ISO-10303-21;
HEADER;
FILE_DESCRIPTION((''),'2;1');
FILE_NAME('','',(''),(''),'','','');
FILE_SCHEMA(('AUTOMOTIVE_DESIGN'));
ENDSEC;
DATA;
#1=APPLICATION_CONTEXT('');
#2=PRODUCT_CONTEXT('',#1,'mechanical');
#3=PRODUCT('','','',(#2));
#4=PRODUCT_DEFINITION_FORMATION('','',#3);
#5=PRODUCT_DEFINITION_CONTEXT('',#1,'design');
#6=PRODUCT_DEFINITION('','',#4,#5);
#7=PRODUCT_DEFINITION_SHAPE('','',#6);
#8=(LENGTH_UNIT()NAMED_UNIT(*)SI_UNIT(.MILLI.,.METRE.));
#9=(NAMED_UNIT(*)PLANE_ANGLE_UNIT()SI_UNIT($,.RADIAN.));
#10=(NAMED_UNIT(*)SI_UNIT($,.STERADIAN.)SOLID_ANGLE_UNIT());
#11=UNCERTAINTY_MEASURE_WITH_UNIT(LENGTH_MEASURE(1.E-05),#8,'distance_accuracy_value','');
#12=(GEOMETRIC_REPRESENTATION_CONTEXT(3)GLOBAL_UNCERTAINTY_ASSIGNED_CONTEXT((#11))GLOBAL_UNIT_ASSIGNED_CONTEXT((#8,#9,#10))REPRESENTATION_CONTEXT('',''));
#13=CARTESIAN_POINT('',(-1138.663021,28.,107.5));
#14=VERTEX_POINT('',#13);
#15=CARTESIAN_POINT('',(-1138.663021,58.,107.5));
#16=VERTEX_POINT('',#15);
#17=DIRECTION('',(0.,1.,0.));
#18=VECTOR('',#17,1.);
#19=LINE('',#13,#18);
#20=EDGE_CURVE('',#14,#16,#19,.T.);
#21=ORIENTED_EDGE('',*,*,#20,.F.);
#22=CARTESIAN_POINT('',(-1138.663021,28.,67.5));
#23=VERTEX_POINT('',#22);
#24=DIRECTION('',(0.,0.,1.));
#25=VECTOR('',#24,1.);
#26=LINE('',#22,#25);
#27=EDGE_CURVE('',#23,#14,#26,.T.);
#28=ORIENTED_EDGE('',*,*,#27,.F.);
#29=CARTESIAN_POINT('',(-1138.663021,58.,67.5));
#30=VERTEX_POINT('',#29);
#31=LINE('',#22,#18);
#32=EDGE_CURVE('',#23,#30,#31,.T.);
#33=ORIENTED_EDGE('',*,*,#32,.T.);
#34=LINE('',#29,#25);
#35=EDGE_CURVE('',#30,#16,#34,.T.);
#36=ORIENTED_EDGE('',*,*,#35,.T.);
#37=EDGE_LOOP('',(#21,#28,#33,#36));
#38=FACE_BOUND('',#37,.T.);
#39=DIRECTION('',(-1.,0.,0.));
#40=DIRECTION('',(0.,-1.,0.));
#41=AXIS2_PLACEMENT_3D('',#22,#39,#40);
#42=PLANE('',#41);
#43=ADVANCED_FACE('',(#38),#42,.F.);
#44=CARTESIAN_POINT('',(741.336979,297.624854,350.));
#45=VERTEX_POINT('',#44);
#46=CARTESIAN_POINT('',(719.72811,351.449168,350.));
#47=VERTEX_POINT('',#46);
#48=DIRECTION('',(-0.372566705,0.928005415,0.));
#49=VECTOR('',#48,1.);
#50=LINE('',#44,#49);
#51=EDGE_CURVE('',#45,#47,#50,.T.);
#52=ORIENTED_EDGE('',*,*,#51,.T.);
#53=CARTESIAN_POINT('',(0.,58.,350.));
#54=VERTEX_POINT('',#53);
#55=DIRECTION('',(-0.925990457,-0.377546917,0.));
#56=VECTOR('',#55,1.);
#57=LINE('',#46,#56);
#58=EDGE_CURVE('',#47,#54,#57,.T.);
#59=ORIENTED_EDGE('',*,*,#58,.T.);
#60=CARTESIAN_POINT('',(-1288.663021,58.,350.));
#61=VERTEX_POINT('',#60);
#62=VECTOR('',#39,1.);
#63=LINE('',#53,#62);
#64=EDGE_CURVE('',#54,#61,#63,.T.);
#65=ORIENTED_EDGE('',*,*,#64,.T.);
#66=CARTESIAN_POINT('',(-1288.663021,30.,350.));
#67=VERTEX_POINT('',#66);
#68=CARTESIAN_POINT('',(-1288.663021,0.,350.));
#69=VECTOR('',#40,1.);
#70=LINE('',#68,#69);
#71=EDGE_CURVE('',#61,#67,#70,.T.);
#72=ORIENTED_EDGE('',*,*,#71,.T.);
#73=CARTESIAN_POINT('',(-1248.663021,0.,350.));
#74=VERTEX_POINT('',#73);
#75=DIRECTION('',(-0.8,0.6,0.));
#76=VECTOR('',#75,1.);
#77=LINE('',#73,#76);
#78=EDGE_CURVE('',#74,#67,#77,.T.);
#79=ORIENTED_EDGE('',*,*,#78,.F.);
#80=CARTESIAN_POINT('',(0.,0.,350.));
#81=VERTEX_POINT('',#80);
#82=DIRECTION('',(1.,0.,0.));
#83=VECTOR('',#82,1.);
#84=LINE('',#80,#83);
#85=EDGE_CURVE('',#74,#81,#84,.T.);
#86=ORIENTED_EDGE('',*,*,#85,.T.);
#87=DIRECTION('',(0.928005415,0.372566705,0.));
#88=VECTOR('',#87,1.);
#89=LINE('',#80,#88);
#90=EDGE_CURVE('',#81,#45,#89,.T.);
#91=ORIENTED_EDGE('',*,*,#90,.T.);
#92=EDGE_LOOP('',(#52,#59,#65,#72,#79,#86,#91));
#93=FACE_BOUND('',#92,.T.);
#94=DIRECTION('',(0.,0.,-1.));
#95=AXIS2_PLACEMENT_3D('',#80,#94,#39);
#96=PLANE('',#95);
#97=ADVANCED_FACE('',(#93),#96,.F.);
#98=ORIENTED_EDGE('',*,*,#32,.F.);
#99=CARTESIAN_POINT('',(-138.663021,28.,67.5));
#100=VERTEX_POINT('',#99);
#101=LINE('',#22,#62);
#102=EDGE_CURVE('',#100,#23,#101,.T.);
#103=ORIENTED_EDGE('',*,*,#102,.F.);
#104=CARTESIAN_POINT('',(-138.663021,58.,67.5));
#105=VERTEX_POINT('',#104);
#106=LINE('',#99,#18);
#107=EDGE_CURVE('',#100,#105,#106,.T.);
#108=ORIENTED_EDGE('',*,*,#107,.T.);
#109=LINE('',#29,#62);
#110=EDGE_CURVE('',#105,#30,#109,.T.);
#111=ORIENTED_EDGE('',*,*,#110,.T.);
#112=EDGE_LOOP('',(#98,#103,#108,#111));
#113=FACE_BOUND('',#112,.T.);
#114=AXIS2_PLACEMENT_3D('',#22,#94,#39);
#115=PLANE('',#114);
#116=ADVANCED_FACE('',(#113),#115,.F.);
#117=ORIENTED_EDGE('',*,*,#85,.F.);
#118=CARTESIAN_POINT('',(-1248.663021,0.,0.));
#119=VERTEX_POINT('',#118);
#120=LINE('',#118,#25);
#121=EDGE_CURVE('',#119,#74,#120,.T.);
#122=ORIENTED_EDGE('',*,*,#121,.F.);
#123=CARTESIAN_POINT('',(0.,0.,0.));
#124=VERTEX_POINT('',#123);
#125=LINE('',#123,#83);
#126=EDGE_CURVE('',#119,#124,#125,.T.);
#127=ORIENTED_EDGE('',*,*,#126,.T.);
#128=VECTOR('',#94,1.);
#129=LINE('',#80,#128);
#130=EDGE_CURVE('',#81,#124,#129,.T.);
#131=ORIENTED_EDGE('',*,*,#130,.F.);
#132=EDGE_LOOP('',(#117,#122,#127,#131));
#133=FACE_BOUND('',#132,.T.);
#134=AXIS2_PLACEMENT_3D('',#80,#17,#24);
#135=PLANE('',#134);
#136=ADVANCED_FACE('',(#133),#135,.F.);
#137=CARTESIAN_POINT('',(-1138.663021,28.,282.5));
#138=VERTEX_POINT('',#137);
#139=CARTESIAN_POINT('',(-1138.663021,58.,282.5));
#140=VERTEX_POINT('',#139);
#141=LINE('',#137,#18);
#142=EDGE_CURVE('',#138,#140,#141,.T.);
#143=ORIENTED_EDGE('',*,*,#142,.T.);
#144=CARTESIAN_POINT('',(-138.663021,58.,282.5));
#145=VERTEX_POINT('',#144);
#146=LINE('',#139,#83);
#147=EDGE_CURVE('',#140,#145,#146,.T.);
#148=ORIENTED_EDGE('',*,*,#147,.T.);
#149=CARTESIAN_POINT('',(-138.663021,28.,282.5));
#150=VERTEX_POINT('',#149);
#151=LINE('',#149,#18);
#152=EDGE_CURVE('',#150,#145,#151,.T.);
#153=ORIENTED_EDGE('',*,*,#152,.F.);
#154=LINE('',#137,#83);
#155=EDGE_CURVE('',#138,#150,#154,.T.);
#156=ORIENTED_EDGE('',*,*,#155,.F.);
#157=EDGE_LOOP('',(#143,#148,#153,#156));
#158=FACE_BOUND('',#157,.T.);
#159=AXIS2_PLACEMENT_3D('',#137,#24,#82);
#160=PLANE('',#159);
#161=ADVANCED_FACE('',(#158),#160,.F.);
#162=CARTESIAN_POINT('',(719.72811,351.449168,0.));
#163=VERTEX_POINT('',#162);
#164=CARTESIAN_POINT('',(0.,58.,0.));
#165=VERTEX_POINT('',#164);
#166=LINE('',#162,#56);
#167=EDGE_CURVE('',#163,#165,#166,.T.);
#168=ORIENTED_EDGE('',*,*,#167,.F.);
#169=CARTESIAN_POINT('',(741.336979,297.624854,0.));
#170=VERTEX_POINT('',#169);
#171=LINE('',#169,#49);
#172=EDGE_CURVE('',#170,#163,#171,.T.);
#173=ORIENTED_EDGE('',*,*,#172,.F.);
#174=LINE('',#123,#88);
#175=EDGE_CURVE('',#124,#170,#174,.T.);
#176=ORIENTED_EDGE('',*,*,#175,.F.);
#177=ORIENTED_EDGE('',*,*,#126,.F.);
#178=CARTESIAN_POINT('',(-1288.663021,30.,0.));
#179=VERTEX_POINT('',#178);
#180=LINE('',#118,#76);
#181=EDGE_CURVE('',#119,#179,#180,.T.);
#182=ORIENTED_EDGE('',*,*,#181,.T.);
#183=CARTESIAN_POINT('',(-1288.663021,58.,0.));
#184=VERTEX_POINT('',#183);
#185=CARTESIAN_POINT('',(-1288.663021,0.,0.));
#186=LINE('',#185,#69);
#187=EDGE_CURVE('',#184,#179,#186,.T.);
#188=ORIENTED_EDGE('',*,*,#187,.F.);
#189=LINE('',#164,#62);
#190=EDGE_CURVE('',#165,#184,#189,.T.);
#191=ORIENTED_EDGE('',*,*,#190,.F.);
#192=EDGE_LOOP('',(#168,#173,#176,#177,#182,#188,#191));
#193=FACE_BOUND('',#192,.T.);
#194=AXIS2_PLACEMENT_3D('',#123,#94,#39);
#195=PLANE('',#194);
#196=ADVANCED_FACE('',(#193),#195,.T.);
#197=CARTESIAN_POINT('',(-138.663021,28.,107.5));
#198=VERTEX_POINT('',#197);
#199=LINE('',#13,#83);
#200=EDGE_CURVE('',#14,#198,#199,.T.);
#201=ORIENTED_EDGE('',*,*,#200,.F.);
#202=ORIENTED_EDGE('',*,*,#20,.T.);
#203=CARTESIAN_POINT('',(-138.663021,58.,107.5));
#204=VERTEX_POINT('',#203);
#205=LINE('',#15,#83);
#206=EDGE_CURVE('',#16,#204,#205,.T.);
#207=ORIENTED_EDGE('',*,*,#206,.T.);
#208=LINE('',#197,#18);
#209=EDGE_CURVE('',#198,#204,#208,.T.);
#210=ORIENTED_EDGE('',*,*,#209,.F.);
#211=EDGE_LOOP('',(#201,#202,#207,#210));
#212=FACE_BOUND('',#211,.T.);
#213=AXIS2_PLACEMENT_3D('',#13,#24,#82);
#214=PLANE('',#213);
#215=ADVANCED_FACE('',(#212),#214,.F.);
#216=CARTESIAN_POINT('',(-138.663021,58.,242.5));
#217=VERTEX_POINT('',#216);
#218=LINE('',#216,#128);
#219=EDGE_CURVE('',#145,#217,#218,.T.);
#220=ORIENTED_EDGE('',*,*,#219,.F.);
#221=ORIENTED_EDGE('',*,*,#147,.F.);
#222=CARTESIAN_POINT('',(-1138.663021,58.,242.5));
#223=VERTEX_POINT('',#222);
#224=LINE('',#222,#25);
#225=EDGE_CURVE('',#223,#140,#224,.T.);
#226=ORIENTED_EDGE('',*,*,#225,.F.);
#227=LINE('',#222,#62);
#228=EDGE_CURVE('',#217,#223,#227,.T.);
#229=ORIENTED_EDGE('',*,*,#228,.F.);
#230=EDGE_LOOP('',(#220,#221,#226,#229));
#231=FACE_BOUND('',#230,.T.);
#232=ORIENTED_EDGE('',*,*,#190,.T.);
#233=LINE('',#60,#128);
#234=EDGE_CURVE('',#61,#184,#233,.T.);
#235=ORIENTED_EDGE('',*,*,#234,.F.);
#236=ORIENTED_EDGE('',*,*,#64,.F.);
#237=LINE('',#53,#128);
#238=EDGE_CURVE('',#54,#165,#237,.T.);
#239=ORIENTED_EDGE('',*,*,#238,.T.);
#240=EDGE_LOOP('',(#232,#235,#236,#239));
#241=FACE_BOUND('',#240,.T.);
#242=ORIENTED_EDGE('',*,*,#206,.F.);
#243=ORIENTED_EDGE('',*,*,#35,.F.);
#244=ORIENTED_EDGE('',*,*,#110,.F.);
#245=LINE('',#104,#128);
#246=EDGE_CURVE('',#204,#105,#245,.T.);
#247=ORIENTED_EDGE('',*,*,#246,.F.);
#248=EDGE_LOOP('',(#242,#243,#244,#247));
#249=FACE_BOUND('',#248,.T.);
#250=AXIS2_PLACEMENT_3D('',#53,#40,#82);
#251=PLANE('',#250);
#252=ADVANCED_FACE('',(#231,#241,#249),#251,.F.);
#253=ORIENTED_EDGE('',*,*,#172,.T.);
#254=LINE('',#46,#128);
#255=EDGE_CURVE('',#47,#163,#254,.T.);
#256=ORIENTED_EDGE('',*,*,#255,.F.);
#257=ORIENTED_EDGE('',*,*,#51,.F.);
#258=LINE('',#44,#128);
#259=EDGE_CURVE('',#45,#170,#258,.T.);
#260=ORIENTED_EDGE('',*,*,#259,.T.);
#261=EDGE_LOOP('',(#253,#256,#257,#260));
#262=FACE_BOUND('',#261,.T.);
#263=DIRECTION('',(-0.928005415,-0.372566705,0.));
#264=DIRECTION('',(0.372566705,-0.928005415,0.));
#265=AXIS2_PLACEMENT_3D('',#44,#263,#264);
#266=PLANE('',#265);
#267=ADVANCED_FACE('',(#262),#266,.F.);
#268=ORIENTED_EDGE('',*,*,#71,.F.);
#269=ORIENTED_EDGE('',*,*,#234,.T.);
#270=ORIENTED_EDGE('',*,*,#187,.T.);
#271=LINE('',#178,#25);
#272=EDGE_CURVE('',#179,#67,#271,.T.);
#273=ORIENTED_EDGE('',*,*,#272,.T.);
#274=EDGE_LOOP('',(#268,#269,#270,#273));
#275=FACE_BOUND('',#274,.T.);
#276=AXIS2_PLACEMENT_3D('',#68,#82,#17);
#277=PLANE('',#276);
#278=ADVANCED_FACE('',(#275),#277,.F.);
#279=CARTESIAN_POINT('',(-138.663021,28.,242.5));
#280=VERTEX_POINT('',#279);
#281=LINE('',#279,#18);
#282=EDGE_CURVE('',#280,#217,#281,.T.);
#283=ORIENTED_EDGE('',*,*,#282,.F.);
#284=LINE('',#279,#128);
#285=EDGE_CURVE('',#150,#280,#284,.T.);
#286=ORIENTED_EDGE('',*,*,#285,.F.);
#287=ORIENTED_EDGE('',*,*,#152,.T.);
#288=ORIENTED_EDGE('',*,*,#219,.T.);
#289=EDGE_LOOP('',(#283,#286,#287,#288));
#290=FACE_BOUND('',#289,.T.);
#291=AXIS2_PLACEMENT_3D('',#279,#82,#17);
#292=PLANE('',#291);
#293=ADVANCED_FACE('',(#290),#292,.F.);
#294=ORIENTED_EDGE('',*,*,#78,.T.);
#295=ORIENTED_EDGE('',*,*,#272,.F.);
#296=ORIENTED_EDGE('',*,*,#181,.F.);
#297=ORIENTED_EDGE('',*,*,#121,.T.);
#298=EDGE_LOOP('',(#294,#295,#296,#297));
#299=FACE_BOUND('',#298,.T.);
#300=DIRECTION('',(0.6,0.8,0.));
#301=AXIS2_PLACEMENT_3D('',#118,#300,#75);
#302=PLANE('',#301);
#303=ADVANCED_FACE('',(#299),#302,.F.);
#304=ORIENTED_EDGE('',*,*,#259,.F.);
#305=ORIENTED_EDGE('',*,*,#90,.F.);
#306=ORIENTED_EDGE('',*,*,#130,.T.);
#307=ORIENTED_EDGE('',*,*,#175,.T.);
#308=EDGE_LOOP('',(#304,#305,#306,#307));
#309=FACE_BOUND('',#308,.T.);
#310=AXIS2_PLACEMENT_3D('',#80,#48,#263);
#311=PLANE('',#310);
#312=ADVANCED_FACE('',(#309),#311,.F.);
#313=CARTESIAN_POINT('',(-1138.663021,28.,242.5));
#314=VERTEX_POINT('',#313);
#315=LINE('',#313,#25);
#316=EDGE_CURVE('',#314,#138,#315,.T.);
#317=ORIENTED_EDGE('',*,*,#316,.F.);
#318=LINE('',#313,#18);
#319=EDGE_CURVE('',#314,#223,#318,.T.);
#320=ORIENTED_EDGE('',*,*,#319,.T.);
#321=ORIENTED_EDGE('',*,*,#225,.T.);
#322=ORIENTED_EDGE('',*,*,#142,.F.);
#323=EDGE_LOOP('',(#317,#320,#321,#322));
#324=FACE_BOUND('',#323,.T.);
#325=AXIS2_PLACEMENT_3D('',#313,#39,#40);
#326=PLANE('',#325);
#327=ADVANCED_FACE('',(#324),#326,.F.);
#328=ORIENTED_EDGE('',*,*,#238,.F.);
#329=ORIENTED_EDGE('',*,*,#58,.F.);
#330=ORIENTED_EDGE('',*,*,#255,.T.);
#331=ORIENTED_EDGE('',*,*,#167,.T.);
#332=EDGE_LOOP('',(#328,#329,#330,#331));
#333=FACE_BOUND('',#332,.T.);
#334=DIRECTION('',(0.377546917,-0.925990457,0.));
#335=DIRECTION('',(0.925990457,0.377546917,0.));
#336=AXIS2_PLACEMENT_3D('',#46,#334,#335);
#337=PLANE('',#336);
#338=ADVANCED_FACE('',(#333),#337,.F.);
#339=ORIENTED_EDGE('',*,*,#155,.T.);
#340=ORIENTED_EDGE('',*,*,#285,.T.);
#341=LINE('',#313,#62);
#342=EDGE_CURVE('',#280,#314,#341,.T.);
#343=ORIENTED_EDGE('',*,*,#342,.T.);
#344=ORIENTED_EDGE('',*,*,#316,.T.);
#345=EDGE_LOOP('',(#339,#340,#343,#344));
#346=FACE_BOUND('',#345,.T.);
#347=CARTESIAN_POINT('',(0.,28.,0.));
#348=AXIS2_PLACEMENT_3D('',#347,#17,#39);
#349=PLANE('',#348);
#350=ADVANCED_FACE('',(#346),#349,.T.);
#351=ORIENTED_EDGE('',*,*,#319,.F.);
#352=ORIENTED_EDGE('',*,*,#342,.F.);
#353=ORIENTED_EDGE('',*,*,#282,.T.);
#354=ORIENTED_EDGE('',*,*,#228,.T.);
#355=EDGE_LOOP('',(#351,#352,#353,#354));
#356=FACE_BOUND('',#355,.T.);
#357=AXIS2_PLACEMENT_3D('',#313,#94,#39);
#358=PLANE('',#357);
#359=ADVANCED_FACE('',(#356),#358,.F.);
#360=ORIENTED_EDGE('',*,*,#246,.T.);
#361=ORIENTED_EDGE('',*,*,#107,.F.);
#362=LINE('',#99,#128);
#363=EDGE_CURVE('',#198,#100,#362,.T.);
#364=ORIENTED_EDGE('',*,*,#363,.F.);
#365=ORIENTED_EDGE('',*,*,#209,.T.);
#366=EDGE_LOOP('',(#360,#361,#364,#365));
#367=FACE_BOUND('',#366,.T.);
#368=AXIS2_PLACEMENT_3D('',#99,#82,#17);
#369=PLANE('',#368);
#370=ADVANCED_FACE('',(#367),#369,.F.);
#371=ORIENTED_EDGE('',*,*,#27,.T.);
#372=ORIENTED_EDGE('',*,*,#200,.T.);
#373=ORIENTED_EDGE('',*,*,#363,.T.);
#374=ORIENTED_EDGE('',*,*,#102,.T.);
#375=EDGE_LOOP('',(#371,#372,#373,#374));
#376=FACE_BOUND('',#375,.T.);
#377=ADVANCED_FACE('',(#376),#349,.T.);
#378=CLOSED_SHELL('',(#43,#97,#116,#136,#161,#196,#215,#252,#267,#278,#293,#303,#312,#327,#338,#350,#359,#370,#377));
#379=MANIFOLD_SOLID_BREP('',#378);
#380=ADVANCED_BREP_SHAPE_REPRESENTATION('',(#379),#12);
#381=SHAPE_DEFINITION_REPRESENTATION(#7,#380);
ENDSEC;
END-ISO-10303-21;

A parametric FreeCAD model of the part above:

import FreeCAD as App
import Part
import Sketcher
from FreeCAD import Vector
Q = App.Units.Quantity

doc = App.newDocument("Part")
body = doc.addObject("PartDesign::Body", "Body")

# Sketch on XY plane
sketch1 = body.newObject("Sketcher::SketchObject", "Sketch")
sketch1.AttachmentSupport = (doc.getObject("XY_Plane"), [""])
sketch1.MapMode = "FlatFace"
sketch1.addGeometry([
    Part.LineSegment(Vector(0, 0, 0), Vector(741, 298, 0)),  # 0
    Part.LineSegment(Vector(741, 298, 0), Vector(720, 351, 0)),  # 1
    Part.LineSegment(Vector(720, 351, 0), Vector(0, 58, 0)),  # 2
    Part.LineSegment(Vector(0, 58, 0), Vector(-1289, 58, 0)),  # 3
    Part.LineSegment(Vector(-1289, 58, 0), Vector(-1289, 0, 0)),  # 4
    Part.LineSegment(Vector(-1289, 0, 0), Vector(0, 0, 0)),  # 5
], False)
sketch1.addConstraint([
    Sketcher.Constraint("Coincident", 0, 2, 1, 1),
    Sketcher.Constraint("Coincident", 1, 2, 2, 1),
    Sketcher.Constraint("Coincident", 2, 2, 3, 1),
    Sketcher.Constraint("Coincident", 3, 2, 4, 1),
    Sketcher.Constraint("Coincident", 4, 2, 5, 1),
    Sketcher.Constraint("Coincident", 5, 2, 0, 1),
    Sketcher.Constraint("Horizontal", 3),
    Sketcher.Constraint("Vertical", 4),
    Sketcher.Constraint("Horizontal", 5),
    Sketcher.Constraint("Coincident", 5, 2, -1, 1),
    Sketcher.Constraint("PointOnObject", 2, 2, -2),
    Sketcher.Constraint("Perpendicular", 0, 1),
    Sketcher.Constraint("DistanceY", 4, 2, 4, 1, Q("58 mm")),
    Sketcher.Constraint("Distance", 1, Q("58 mm")),
    Sketcher.Constraint("DistanceX", 3, 2, 0, 2, Q("2030 mm")),
    Sketcher.Constraint("DistanceX", 3, 2, 3, 1, Q("1288.663021 mm")),
    Sketcher.Constraint("Distance", 2, Q("777.25219 mm")),
])
pad1 = body.newObject("PartDesign::Pad", "Pad")
pad1.Profile = sketch1
pad1.Length = 350

# Sketch on XY plane
sketch2 = body.newObject("Sketcher::SketchObject", "Sketch001")
sketch2.AttachmentSupport = (doc.getObject("XY_Plane"), [""])
sketch2.MapMode = "FlatFace"
sketch2.AttachmentOffset = App.Placement(Vector(0, 0, 350), App.Rotation())
sketch2.addGeometry([
    Part.LineSegment(Vector(-1289, 30, 0), Vector(-1289, 0, 0)),
    Part.LineSegment(Vector(-1289, 0, 0), Vector(-1249, 0, 0)),
    Part.LineSegment(Vector(-1249, 0, 0), Vector(-1289, 30, 0)),
], False)
sketch2.addConstraint([
    Sketcher.Constraint("Coincident", 0, 2, 1, 1),
    Sketcher.Constraint("Coincident", 1, 2, 2, 1),
    Sketcher.Constraint("Coincident", 2, 2, 0, 1),
    Sketcher.Constraint("Vertical", 0),
    Sketcher.Constraint("Horizontal", 1),
    Sketcher.Constraint("PointOnObject", 0, 2, -1),
    Sketcher.Constraint("DistanceX", 1, 1, 1, 2, Q("40 mm")),
    Sketcher.Constraint("DistanceY", 0, 2, 0, 1, Q("30 mm")),
    Sketcher.Constraint("DistanceX", 0, 2, -1, 1, Q("1288.663021 mm")),
])
pocket1 = body.newObject("PartDesign::Pocket", "Pocket")
pocket1.Profile = sketch2
pocket1.Length = 350

# Sketch on XZ plane
sketch3 = body.newObject("Sketcher::SketchObject", "Sketch002")
sketch3.AttachmentSupport = (doc.getObject("XZ_Plane"), [""])
sketch3.MapMode = "FlatFace"
sketch3.AttachmentOffset = App.Placement(Vector(0, 0, -58), App.Rotation())
sketch3.addGeometry([
    Part.LineSegment(Vector(-1139, 68, 0), Vector(-1139, 108, 0)),  # 0
    Part.LineSegment(Vector(-1139, 108, 0), Vector(-139, 108, 0)),  # 1
    Part.LineSegment(Vector(-139, 108, 0), Vector(-139, 68, 0)),  # 2
    Part.LineSegment(Vector(-139, 68, 0), Vector(-1139, 68, 0)),  # 3
    Part.LineSegment(Vector(-1139, 242, 0), Vector(-1139, 282, 0)),  # 4
    Part.LineSegment(Vector(-1139, 282, 0), Vector(-139, 282, 0)),  # 5
    Part.LineSegment(Vector(-139, 282, 0), Vector(-139, 242, 0)),  # 6
    Part.LineSegment(Vector(-139, 242, 0), Vector(-1139, 242, 0)),  # 7
], False)
sketch3.addConstraint([
    Sketcher.Constraint("Coincident", 0, 2, 1, 1),
    Sketcher.Constraint("Coincident", 1, 2, 2, 1),
    Sketcher.Constraint("Coincident", 2, 2, 3, 1),
    Sketcher.Constraint("Coincident", 3, 2, 0, 1),
    Sketcher.Constraint("Coincident", 4, 2, 5, 1),
    Sketcher.Constraint("Coincident", 5, 2, 6, 1),
    Sketcher.Constraint("Coincident", 6, 2, 7, 1),
    Sketcher.Constraint("Coincident", 7, 2, 4, 1),
    Sketcher.Constraint("Vertical", 0),
    Sketcher.Constraint("Horizontal", 1),
    Sketcher.Constraint("Vertical", 2),
    Sketcher.Constraint("Horizontal", 3),
    Sketcher.Constraint("Vertical", 4),
    Sketcher.Constraint("Horizontal", 5),
    Sketcher.Constraint("Vertical", 6),
    Sketcher.Constraint("Horizontal", 7),
    Sketcher.Constraint("Vertical", 3, 2, 4, 2),
    Sketcher.Constraint("Vertical", 2, 2, 5, 2),
    Sketcher.Constraint("Equal", 2, 4),
    Sketcher.Constraint("DistanceX", 1, 1, 1, 2, Q("1000 mm")),
    Sketcher.Constraint("DistanceY", 0, 1, 0, 2, Q("40 mm")),
    Sketcher.Constraint("DistanceY", 0, 2, 4, 2, Q("175 mm")),
    Sketcher.Constraint("DistanceY", -1, 1, 0, 2, Q("107.5 mm")),
    Sketcher.Constraint("DistanceX", 0, 2, -1, 1, Q("1138.663021 mm")),
])
pocket2 = body.newObject("PartDesign::Pocket", "Pocket001")
pocket2.Profile = sketch3
pocket2.Length = 30
pocket2.Reversed = True

doc.recompute()
